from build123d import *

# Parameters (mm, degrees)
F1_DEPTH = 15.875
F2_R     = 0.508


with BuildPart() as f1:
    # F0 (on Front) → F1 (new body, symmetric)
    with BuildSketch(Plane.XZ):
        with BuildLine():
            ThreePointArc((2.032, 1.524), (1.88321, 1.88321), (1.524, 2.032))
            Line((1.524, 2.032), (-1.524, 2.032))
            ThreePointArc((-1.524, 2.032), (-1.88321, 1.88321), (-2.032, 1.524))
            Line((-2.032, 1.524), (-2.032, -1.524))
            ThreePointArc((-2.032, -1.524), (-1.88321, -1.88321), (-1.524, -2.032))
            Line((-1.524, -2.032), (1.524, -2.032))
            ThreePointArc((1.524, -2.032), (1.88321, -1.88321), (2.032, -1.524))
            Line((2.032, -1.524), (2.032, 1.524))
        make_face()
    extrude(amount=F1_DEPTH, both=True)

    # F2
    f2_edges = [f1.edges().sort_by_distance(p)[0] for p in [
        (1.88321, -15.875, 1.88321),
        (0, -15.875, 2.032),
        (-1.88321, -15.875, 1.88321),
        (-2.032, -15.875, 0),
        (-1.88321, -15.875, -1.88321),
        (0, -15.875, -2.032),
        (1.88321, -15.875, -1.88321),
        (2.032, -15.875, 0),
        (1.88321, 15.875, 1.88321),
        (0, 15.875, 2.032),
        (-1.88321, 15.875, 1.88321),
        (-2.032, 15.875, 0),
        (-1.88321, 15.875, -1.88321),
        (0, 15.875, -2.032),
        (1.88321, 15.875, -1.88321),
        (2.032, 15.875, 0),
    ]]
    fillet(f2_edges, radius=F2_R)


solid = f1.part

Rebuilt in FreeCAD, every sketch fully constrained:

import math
import FreeCAD as App
import Part
import Sketcher
Q = App.Units.Quantity


def edges_at(feature, points):
    """Names of the edges that pass closest to the given points."""
    edges = feature.Shape.Edges
    near = lambda p: min(range(len(edges)), key=lambda i: edges[i].distToShape(Part.Vertex(*p))[0])
    return sorted({f"Edge{near(p) + 1}" for p in points})

doc = App.newDocument("Part")
body = doc.addObject("PartDesign::Body", "Body")

# Sketch on XZ plane
sketch1 = body.newObject("Sketcher::SketchObject", "Sketch")
sketch1.AttachmentSupport = (doc.getObject("XZ_Plane"), [""])
sketch1.MapMode = "FlatFace"
sketch1.addGeometry(Part.ArcOfCircle(Part.Circle(App.Vector(1.5, 1.5, 0), App.Vector(0, 0, 1), 0.5), math.radians(0), math.radians(90)), False)
sketch1.addGeometry(Part.LineSegment(App.Vector(1.5, 2, 0), App.Vector(-1.5, 2, 0)), False)
sketch1.addGeometry(Part.ArcOfCircle(Part.Circle(App.Vector(-1.5, 1.5, 0), App.Vector(0, 0, 1), 0.5), math.radians(90), math.radians(180)), False)
sketch1.addGeometry(Part.LineSegment(App.Vector(-2, 1.5, 0), App.Vector(-2, -1.5, 0)), False)
sketch1.addGeometry(Part.ArcOfCircle(Part.Circle(App.Vector(-1.5, -1.5, 0), App.Vector(0, 0, 1), 0.5), math.radians(-180), math.radians(-90)), False)
sketch1.addGeometry(Part.LineSegment(App.Vector(-1.5, -2, 0), App.Vector(1.5, -2, 0)), False)
sketch1.addGeometry(Part.ArcOfCircle(Part.Circle(App.Vector(1.5, -1.5, 0), App.Vector(0, 0, 1), 0.5), math.radians(-90), math.radians(0)), False)
sketch1.addGeometry(Part.LineSegment(App.Vector(2, -1.5, 0), App.Vector(2, 1.5, 0)), False)
sketch1.addConstraint(Sketcher.Constraint("Tangent", 0, 2, 1, 1))
sketch1.addConstraint(Sketcher.Constraint("Tangent", 1, 2, 2, 1))
sketch1.addConstraint(Sketcher.Constraint("Tangent", 2, 2, 3, 1))
sketch1.addConstraint(Sketcher.Constraint("Tangent", 3, 2, 4, 1))
sketch1.addConstraint(Sketcher.Constraint("Tangent", 4, 2, 5, 1))
sketch1.addConstraint(Sketcher.Constraint("Tangent", 5, 2, 6, 1))
sketch1.addConstraint(Sketcher.Constraint("Tangent", 6, 2, 7, 1))
sketch1.addConstraint(Sketcher.Constraint("Tangent", 7, 2, 0, 1))
sketch1.addConstraint(Sketcher.Constraint("Horizontal", 1))
sketch1.addConstraint(Sketcher.Constraint("Vertical", 3))
sketch1.addConstraint(Sketcher.Constraint("Horizontal", 5))
sketch1.addConstraint(Sketcher.Constraint("Vertical", 7))
sketch1.addConstraint(Sketcher.Constraint("Equal", 0, 2))
sketch1.addConstraint(Sketcher.Constraint("Equal", 2, 4))
sketch1.addConstraint(Sketcher.Constraint("Equal", 4, 6))
sketch1.addConstraint(Sketcher.Constraint("Symmetric", 0, 3, 4, 3, -1, 1))
sketch1.addConstraint(Sketcher.Constraint("Equal", 5, 3))
sketch1.addConstraint(Sketcher.Constraint("Radius", 0, Q("0.02 in")))
sketch1.addConstraint(Sketcher.Constraint("DistanceX", 1, 2, 1, 1, Q("0.12 in")))
pad1 = body.newObject("PartDesign::Pad", "Pad")
pad1.Profile = sketch1
pad1.Length = Q("1.25 in")
pad1.Midplane = True
doc.recompute()

fillet = body.newObject("PartDesign::Fillet", "Fillet")
fillet.Base = (pad1, edges_at(pad1, [
    (1.883, -15.875, 1.883),
    (0, -15.875, 2.032),
    (-1.883, -15.875, 1.883),
    (-2.032, -15.875, 0),
    (-1.883, -15.875, -1.883),
    (0, -15.875, -2.032),
    (1.883, -15.875, -1.883),
    (2.032, -15.875, 0),
    (1.883, 15.875, 1.883),
    (0, 15.875, 2.032),
    (-1.883, 15.875, 1.883),
    (-2.032, 15.875, 0),
    (-1.883, 15.875, -1.883),
    (0, 15.875, -2.032),
    (1.883, 15.875, -1.883),
    (2.032, 15.875, 0),
]))
fillet.Radius = Q("0.02 in")

doc.recompute()
